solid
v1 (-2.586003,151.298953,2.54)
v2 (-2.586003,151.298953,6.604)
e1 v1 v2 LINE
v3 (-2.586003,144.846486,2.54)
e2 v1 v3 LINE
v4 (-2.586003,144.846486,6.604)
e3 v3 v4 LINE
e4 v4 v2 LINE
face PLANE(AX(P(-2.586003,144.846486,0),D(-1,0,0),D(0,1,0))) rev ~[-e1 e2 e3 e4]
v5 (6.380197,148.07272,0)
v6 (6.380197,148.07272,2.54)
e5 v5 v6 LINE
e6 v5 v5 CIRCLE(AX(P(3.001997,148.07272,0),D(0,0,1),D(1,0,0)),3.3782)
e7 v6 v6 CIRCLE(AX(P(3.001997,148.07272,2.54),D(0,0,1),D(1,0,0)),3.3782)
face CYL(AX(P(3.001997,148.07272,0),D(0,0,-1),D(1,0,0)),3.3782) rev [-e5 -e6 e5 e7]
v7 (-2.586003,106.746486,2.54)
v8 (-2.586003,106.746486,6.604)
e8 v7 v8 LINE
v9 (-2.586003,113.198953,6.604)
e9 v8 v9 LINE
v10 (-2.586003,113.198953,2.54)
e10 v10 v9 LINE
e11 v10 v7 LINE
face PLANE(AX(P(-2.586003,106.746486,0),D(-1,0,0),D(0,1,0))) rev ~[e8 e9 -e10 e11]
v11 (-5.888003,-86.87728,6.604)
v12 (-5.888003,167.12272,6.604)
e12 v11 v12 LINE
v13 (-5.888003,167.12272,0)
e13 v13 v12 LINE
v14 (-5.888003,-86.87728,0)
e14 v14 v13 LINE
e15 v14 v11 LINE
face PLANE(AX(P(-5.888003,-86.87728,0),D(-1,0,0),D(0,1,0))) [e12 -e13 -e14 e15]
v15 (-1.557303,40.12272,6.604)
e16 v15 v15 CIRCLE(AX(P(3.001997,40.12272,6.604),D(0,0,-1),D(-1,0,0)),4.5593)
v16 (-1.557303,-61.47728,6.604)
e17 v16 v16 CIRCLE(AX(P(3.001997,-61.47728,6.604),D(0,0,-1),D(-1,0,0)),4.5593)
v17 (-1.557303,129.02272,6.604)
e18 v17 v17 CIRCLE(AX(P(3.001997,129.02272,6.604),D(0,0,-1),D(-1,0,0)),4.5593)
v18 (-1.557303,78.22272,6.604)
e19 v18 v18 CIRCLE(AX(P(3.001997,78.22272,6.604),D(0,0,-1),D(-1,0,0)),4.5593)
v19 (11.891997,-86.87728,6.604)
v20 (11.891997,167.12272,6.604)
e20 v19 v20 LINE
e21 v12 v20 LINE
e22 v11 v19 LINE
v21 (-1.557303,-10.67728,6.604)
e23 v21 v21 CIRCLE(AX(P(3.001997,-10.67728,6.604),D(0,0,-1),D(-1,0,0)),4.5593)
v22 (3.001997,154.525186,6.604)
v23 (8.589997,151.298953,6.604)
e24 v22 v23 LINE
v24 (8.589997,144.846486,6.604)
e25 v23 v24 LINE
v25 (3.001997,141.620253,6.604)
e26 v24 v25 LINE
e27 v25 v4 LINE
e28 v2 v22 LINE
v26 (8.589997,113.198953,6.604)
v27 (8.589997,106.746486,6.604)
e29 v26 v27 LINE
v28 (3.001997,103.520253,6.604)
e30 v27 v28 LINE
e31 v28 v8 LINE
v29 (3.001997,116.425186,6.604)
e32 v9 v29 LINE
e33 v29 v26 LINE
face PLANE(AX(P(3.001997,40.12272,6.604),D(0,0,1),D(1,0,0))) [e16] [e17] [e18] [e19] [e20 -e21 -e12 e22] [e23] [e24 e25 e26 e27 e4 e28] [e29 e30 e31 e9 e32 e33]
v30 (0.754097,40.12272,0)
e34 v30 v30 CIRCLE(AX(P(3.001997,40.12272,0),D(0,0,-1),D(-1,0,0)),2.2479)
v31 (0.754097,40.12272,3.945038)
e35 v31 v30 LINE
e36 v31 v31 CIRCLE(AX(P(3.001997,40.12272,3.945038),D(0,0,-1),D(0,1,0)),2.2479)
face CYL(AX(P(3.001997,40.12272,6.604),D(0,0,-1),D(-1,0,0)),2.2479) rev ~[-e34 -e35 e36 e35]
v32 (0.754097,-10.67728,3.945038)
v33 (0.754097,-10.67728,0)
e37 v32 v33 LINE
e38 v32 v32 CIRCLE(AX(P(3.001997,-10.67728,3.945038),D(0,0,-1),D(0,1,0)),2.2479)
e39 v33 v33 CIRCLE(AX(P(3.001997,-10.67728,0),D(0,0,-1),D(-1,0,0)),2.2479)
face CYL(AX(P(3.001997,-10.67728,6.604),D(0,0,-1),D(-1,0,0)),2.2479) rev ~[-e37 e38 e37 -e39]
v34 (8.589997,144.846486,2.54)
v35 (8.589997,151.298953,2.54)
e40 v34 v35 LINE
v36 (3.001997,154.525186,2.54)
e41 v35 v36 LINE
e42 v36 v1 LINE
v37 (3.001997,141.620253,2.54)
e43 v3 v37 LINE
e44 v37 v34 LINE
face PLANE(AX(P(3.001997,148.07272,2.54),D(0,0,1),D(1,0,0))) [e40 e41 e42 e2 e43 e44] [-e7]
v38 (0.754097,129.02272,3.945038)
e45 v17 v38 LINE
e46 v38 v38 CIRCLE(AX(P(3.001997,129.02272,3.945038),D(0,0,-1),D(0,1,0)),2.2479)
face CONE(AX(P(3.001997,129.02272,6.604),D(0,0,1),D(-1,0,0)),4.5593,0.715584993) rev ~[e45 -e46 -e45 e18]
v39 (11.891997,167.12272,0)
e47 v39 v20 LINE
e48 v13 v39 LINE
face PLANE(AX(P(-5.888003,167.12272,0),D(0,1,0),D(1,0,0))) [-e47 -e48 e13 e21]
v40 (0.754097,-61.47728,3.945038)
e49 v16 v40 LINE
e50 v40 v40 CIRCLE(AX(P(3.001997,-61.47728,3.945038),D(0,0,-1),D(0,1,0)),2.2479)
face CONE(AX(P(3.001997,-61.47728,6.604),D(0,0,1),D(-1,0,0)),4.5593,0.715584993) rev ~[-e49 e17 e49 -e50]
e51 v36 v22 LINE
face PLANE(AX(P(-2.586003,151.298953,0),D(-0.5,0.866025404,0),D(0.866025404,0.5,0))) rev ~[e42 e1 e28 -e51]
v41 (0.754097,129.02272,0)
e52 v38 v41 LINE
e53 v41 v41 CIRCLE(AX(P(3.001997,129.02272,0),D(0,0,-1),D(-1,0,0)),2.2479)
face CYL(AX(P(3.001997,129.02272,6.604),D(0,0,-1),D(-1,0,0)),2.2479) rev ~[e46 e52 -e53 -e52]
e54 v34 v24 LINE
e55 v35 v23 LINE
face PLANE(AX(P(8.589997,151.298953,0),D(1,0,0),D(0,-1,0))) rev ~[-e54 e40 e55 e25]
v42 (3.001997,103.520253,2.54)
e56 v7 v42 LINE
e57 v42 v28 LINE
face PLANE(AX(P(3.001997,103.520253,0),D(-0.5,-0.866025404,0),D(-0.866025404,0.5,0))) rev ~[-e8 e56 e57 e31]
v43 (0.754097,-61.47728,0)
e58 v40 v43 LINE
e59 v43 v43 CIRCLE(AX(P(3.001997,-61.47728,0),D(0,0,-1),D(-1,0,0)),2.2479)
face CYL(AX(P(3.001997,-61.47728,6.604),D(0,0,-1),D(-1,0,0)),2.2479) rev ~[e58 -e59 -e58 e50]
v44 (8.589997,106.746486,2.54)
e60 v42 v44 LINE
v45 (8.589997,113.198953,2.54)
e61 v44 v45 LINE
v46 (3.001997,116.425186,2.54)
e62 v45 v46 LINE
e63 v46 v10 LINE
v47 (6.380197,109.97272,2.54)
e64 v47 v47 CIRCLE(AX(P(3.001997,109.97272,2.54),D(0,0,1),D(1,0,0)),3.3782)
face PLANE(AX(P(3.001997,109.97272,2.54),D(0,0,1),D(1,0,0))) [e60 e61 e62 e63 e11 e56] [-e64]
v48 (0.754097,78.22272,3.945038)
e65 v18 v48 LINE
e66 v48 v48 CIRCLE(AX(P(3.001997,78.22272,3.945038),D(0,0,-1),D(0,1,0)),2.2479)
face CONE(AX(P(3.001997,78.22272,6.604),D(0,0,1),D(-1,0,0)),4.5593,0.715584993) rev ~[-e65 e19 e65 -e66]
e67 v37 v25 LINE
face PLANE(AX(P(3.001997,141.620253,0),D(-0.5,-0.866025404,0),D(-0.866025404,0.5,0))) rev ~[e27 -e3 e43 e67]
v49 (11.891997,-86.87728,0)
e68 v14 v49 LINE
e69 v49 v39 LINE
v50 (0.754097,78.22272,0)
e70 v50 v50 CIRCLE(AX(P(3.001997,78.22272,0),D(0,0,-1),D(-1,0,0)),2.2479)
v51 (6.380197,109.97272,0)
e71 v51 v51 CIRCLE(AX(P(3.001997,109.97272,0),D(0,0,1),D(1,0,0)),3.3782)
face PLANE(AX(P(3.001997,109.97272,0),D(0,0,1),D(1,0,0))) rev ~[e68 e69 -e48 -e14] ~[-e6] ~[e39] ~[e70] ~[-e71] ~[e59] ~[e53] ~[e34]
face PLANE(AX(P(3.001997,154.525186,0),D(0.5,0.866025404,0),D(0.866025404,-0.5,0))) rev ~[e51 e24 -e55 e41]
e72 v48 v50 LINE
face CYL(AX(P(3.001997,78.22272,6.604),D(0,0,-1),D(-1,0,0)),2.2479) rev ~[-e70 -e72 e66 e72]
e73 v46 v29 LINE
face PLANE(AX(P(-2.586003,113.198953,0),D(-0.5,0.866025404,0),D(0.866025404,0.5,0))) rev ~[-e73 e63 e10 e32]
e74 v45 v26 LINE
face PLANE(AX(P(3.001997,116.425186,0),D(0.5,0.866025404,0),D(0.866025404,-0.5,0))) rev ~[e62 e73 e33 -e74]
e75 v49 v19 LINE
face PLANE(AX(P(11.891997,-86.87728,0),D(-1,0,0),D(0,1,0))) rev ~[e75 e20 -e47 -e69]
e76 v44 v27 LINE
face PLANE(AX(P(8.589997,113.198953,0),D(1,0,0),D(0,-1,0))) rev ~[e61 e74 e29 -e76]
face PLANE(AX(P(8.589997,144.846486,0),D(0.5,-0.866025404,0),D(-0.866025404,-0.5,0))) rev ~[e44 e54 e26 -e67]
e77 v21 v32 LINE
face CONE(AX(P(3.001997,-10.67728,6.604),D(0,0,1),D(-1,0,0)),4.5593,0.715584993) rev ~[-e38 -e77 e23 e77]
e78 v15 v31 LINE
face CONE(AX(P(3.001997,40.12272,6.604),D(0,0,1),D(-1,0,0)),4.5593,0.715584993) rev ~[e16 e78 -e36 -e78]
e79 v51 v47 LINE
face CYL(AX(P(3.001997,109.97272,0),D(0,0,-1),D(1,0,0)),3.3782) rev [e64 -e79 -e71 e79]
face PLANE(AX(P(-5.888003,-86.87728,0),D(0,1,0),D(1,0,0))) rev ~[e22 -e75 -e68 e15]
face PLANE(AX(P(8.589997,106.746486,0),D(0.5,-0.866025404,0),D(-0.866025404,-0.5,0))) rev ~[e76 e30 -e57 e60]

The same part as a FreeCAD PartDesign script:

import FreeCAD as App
import Part
import Sketcher
from FreeCAD import Vector
Q = App.Units.Quantity


def add_polygon(sketch, points):
    """Adds a closed chain of lines whose ends are joined by coincident constraints."""
    first, n = sketch.GeometryCount, len(points)
    for a, b in zip(points, points[1:] + points[:1]):
        sketch.addGeometry(Part.LineSegment(App.Vector(*a, 0), App.Vector(*b, 0)), False)
    for i in range(n):
        sketch.addConstraint(Sketcher.Constraint("Coincident", first + i, 2, first + (i + 1) % n, 1))

doc = App.newDocument("Part")
body = doc.addObject("PartDesign::Body", "Body")

# Sketch on XY plane
sketch1 = doc.addObject("Sketcher::SketchObject", "Sketch")
body.addObject(sketch1)
sketch1.AttachmentSupport = (doc.XY_Plane, [""])
sketch1.MapMode = "FlatFace"
add_polygon(sketch1, [(-5.888003, 167.12272), (-5.888003, -86.87728), (11.891997, -86.87728), (11.891997, 167.12272)])  # lines 0-3
add_polygon(sketch1, [(3.001997, 116.425186), (8.589997, 113.198953), (8.589997, 106.746486), (3.001997, 103.520253), (-2.586003, 106.746486), (-2.586003, 113.198953)])  # lines 4-9
add_polygon(sketch1, [(-2.586003, 151.298953), (3.001997, 154.525186), (8.589997, 151.298953), (8.589997, 144.846486), (3.001997, 141.620253), (-2.586003, 144.846486)])  # lines 10-15
sketch1.addConstraint([
    Sketcher.Constraint("Vertical", 0),
    Sketcher.Constraint("Horizontal", 1),
    Sketcher.Constraint("Vertical", 2),
    Sketcher.Constraint("Horizontal", 3),
    Sketcher.Constraint("Vertical", 5),
    Sketcher.Constraint("Vertical", 8),
    Sketcher.Constraint("Vertical", 12),
    Sketcher.Constraint("Vertical", 15),
    Sketcher.Constraint("Parallel", 4, 7),
    Sketcher.Constraint("Parallel", 6, 9),
    Sketcher.Constraint("Parallel", 9, 10),
    Sketcher.Constraint("Parallel", 7, 11),
    Sketcher.Constraint("Parallel", 10, 13),
    Sketcher.Constraint("Parallel", 11, 14),
    Sketcher.Constraint("Horizontal", 5, 2, 7, 2),
    Sketcher.Constraint("Horizontal", 4, 2, 8, 2),
    Sketcher.Constraint("Horizontal", 12, 2, 14, 2),
    Sketcher.Constraint("Horizontal", 11, 2, 15, 2),
    Sketcher.Constraint("Vertical", 6, 2, 9, 2),
    Sketcher.Constraint("Vertical", 9, 2, 10, 2),
    Sketcher.Constraint("Vertical", 5, 2, 11, 2),
    Sketcher.Constraint("Equal", 8, 12),
    Sketcher.Constraint("DistanceY", 0, 2, 0, 1, Q("10 in")),
    Sketcher.Constraint("DistanceX", 1, 1, 1, 2, Q("0.7 in")),
    Sketcher.Constraint("Angle", 4, Q("-30 deg")),
    Sketcher.Constraint("DistanceY", 9, 2, 10, 2, Q("1.5 in")),
    Sketcher.Constraint("DistanceX", 4, 2, 2, 2, Q("0.13 in")),
    Sketcher.Constraint("DistanceX", 6, 2, 5, 2, Q("0.22 in")),
    Sketcher.Constraint("DistanceY", 6, 2, 4, 2, Q("9.6787 mm")),
    Sketcher.Constraint("DistanceY", 0, 2, -1, 1, Q("86.87728 mm")),
    Sketcher.Constraint("DistanceX", 0, 2, -1, 1, Q("5.888003 mm")),
    Sketcher.Constraint("DistanceY", -1, 1, 4, 2, Q("113.198953 mm")),
])
pad1 = doc.addObject("PartDesign::Pad", "Pad")
body.addObject(pad1)
pad1.Profile = sketch1
pad1.Length = Q("0.26 in")

# Sketch on XY plane
sketch2 = doc.addObject("Sketcher::SketchObject", "Sketch001")
body.addObject(sketch2)
sketch2.AttachmentSupport = (doc.XY_Plane, [""])
sketch2.MapMode = "FlatFace"
add_polygon(sketch2, [(3.001997, 103.520253), (8.589997, 106.746486), (8.589997, 113.198953), (3.001997, 116.425186), (-2.586003, 113.198953), (-2.586003, 106.746486)])  # lines 0-5
sketch2.addGeometry(Part.Circle(Vector(3.001997, 109.97272, 0), Vector(0, 0, 1), 3.3782), False)  # 6
add_polygon(sketch2, [(8.589997, 144.846486), (8.589997, 151.298953), (3.001997, 154.525186), (-2.586003, 151.298953), (-2.586003, 144.846486), (3.001997, 141.620253)])  # lines 7-12
sketch2.addGeometry(Part.Circle(Vector(3.001997, 148.07272, 0), Vector(0, 0, 1), 3.3782), False)  # 13
sketch2.addConstraint([
    Sketcher.Constraint("Vertical", 1),
    Sketcher.Constraint("Vertical", 4),
    Sketcher.Constraint("Vertical", 7),
    Sketcher.Constraint("Vertical", 10),
    Sketcher.Constraint("Equal", 6, 13),
    Sketcher.Constraint("Parallel", 0, 3),
    Sketcher.Constraint("Parallel", 2, 5),
    Sketcher.Constraint("Parallel", 5, 8),
    Sketcher.Constraint("Parallel", 3, 9),
    Sketcher.Constraint("Parallel", 8, 11),
    Sketcher.Constraint("Parallel", 9, 12),
    Sketcher.Constraint("Horizontal", 1, 2, 3, 2),
    Sketcher.Constraint("Horizontal", 0, 2, 4, 2),
    Sketcher.Constraint("Horizontal", 7, 2, 9, 2),
    Sketcher.Constraint("Horizontal", 10, 2, 12, 2),
    Sketcher.Constraint("Vertical", 6, 3, 13, 3),
    Sketcher.Constraint("Vertical", 13, 3, 2, 2),
    Sketcher.Constraint("Vertical", 2, 2, 5, 2),
    Sketcher.Constraint("Vertical", 1, 2, 7, 2),
    Sketcher.Constraint("Vertical", 5, 2, 8, 2),
    Sketcher.Constraint("Equal", 4, 7),
    Sketcher.Constraint("Diameter", 6, Q("0.266 in")),
    Sketcher.Constraint("Angle", 0, Q("30 deg")),
    Sketcher.Constraint("DistanceY", 6, 3, 13, 3, Q("1.5 in")),
    Sketcher.Constraint("DistanceY", 1, 2, 7, 2, Q("1.5 in")),
    Sketcher.Constraint("DistanceX", 6, 3, 0, 2, Q("0.22 in")),
    Sketcher.Constraint("DistanceY", 0, 2, 2, 2, Q("9.6787 mm")),
    Sketcher.Constraint("DistanceY", -1, 1, 6, 3, Q("109.97272 mm")),
    Sketcher.Constraint("DistanceX", -1, 1, 6, 3, Q("3.001997 mm")),
    Sketcher.Constraint("DistanceY", -1, 1, 0, 2, Q("106.746486 mm")),
])
pad2 = doc.addObject("PartDesign::Pad", "Pad001")
body.addObject(pad2)
pad2.Profile = sketch2
pad2.Length = Q("0.1 in")

# Sketch on XY plane
sketch3 = doc.addObject("Sketcher::SketchObject", "Sketch002")
body.addObject(sketch3)
sketch3.AttachmentSupport = (doc.XY_Plane, [""])
sketch3.MapMode = "FlatFace"
sketch3.AttachmentOffset = App.Placement(Vector(0, 0, 0.26 * 25.4), App.Rotation())
sketch3.addGeometry([
    Part.Circle(Vector(3.001997, 129.02272, 0), Vector(0, 0, 1), 2.2479),  # 0
    Part.Circle(Vector(3.001997, 78.22272, 0), Vector(0, 0, 1), 2.2479),  # 1
    Part.Circle(Vector(3.001997, 40.12272, 0), Vector(0, 0, 1), 2.2479),  # 2
    Part.Circle(Vector(3.001997, -10.67728, 0), Vector(0, 0, 1), 2.2479),  # 3
    Part.Circle(Vector(3.001997, -61.47728, 0), Vector(0, 0, 1), 2.2479),  # 4
], False)
sketch3.addConstraint([
    Sketcher.Constraint("Equal", 0, 1),
    Sketcher.Constraint("Equal", 1, 2),
    Sketcher.Constraint("Equal", 2, 3),
    Sketcher.Constraint("Equal", 3, 4),
    Sketcher.Constraint("Vertical", 0, 3, 1, 3),
    Sketcher.Constraint("Vertical", 1, 3, 2, 3),
    Sketcher.Constraint("Vertical", 2, 3, 3, 3),
    Sketcher.Constraint("Vertical", 3, 3, 4, 3),
    Sketcher.Constraint("Diameter", 0, Q("0.177 in")),
    Sketcher.Constraint("DistanceY", 1, 3, 0, 3, Q("2 in")),
    Sketcher.Constraint("DistanceY", 3, 3, 2, 3, Q("2 in")),
    Sketcher.Constraint("DistanceY", 4, 3, 3, 3, Q("2 in")),
    Sketcher.Constraint("DistanceY", 2, 3, 1, 3, Q("1.5 in")),
    Sketcher.Constraint("DistanceY", -1, 1, 0, 3, Q("129.02272 mm")),
    Sketcher.Constraint("DistanceX", -1, 1, 0, 3, Q("3.001997 mm")),
])
doc.recompute()
hole = doc.addObject("PartDesign::Hole", "Hole")
body.addObject(hole)
hole.Profile = sketch3
hole.ThreadType = "None"
hole.Diameter = Q("0.177 in")
hole.DepthType = "ThroughAll"
hole.HoleCutType = "Countersink"
hole.HoleCutDiameter = Q("0.359 in")
hole.HoleCutCountersinkAngle = 82

doc.recompute()
